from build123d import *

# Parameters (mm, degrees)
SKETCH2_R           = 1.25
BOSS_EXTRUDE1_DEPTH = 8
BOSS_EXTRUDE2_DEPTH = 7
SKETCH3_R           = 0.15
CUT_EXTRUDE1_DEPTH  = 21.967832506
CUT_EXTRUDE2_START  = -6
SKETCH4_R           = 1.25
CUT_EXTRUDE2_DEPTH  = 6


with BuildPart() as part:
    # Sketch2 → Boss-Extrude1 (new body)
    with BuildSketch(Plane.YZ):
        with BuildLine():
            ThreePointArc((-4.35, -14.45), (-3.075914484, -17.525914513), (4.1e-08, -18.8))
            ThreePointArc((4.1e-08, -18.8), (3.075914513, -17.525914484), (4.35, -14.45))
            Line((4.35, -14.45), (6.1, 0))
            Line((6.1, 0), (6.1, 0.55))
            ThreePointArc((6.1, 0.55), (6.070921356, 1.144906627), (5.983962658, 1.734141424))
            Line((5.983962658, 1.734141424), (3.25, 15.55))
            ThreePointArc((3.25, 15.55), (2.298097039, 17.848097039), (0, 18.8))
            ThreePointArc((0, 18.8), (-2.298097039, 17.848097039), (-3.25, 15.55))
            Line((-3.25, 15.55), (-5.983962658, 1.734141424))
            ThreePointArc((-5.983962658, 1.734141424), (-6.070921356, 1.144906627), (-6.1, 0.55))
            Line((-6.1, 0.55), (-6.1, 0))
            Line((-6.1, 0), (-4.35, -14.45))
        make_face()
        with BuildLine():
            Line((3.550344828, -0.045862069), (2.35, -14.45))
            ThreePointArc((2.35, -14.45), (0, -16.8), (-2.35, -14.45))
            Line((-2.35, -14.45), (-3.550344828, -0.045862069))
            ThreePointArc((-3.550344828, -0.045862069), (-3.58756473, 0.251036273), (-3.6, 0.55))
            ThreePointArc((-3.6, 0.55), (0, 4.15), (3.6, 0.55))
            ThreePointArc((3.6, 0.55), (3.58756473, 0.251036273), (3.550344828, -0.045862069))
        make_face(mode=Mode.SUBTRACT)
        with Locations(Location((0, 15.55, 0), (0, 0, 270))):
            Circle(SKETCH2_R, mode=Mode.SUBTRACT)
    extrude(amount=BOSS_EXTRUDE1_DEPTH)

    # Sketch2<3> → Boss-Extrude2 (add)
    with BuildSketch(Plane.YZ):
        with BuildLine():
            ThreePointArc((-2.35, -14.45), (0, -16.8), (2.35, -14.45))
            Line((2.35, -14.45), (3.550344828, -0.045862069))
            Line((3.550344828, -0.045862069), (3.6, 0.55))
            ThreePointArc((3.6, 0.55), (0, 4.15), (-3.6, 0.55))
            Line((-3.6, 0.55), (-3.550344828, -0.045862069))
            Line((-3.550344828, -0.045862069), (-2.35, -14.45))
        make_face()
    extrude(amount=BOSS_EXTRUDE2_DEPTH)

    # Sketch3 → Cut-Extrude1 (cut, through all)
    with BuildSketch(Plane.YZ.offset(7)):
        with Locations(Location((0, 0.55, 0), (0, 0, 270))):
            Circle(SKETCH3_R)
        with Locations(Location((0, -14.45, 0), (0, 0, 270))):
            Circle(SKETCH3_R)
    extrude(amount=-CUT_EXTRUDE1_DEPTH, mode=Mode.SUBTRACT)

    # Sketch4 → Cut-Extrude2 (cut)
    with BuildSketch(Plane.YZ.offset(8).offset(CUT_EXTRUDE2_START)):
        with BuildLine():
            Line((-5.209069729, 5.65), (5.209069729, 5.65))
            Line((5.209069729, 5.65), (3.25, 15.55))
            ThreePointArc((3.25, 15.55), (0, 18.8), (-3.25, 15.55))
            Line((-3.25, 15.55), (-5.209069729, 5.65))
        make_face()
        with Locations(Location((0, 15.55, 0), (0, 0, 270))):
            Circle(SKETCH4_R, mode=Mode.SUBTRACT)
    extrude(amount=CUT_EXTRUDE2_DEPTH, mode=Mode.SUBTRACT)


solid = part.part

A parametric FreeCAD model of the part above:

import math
import FreeCAD as App
import Part
import Sketcher

V = App.Vector
Q = App.Units.Quantity

doc = App.newDocument("Part")
params = doc.addObject("Spreadsheet::Sheet", "Params")
for row, (alias, value) in enumerate([
    ("sketch1_diameter", "2.5 mm"),
    ("sketch1_radius", "6.1 mm"),
    ("sketch1_radius2", "3.6 mm"),
    ("sketch1_radius3", "4.35 mm"),
    ("sketch1_radius4", "3.25 mm"),
    ("pad1_length", "8 mm"),
    ("sketch2_radius", "3.6 mm"),
    ("sketch2_radius2", "2.35 mm"),
    ("pad2_length", "7 mm"),
    ("sketch3_diameter", "0.3 mm"),
    ("sketch4_diameter", "2.5 mm"),
    ("sketch4_radius", "3.25 mm"),
    ("pocket2_length", "6 mm"),
], start=1):
    params.set(f"A{row}", alias)
    params.set(f"B{row}", "=" + value)
    params.setAlias(f"B{row}", alias)

body = doc.addObject("PartDesign::Body", "Body")

# Sketch on YZ plane
sketch1 = body.newObject("Sketcher::SketchObject", "Sketch")
sketch1.AttachmentSupport = (doc.getObject("YZ_Plane"), [""])
sketch1.MapMode = "FlatFace"
sketch1.addGeometry(Part.ArcOfCircle(Part.Circle(V(0, -14.45, 0), V(0, 0, 1), 4.35), math.radians(180), math.radians(270.000001)), False)
sketch1.addGeometry(Part.ArcOfCircle(Part.Circle(V(0, -14.45, 0), V(0, 0, 1), 4.35), math.radians(-89.999999), math.radians(0)), False)
sketch1.addGeometry(Part.LineSegment(V(4.35, -14.45, 0), V(6.1, 0, 0)), False)
sketch1.addGeometry(Part.LineSegment(V(6.1, 0, 0), V(6.1, 0.55, 0)), False)
sketch1.addGeometry(Part.ArcOfCircle(Part.Circle(V(0, 0.55, 0), V(0, 0, 1), 6.1), math.radians(0), math.radians(11.193411)), False)
sketch1.addGeometry(Part.LineSegment(V(5.983963, 1.734141, 0), V(3.25, 15.55, 0)), False)
sketch1.addGeometry(Part.ArcOfCircle(Part.Circle(V(0, 15.55, 0), V(0, 0, 1), 3.25), math.radians(0), math.radians(90)), False)
sketch1.addGeometry(Part.ArcOfCircle(Part.Circle(V(0, 15.55, 0), V(0, 0, 1), 3.25), math.radians(90), math.radians(180)), False)
sketch1.addGeometry(Part.LineSegment(V(-3.25, 15.55, 0), V(-5.983963, 1.734141, 0)), False)
sketch1.addGeometry(Part.ArcOfCircle(Part.Circle(V(0, 0.55, 0), V(0, 0, 1), 6.1), math.radians(168.806589), math.radians(180)), False)
sketch1.addGeometry(Part.LineSegment(V(-6.1, 0.55, 0), V(-6.1, 0, 0)), False)
sketch1.addGeometry(Part.LineSegment(V(-6.1, 0, 0), V(-4.35, -14.45, 0)), False)
sketch1.addGeometry(Part.ArcOfCircle(Part.Circle(V(0, 0.55, 0), V(0, 0, 1), 3.6), math.radians(-9.527283), math.radians(0)), False)
sketch1.addGeometry(Part.LineSegment(V(3.550345, -0.045862, 0), V(2.35, -14.45, 0)), False)
sketch1.addGeometry(Part.ArcOfCircle(Part.Circle(V(0, -14.45, 0), V(0, 0, 1), 2.35), math.radians(180), math.radians(360)), False)
sketch1.addGeometry(Part.LineSegment(V(-2.35, -14.45, 0), V(-3.550345, -0.045862, 0)), False)
sketch1.addGeometry(Part.ArcOfCircle(Part.Circle(V(0, 0.55, 0), V(0, 0, 1), 3.6), math.radians(180), math.radians(189.527283)), False)
sketch1.addGeometry(Part.ArcOfCircle(Part.Circle(V(0, 0.55, 0), V(0, 0, 1), 3.6), math.radians(0), math.radians(180)), False)
sketch1.addGeometry(Part.Circle(V(0, 15.55, 0), V(0, 0, 1), 1.25), False)
sketch1.addConstraint(Sketcher.Constraint("Tangent", 0, 2, 1, 1))
sketch1.addConstraint(Sketcher.Constraint("Coincident", 1, 2, 2, 1))
sketch1.addConstraint(Sketcher.Constraint("Coincident", 2, 2, 3, 1))
sketch1.addConstraint(Sketcher.Constraint("Tangent", 3, 2, 4, 1))
sketch1.addConstraint(Sketcher.Constraint("Tangent", 4, 2, 5, 1))
sketch1.addConstraint(Sketcher.Constraint("Coincident", 5, 2, 6, 1))
sketch1.addConstraint(Sketcher.Constraint("Tangent", 6, 2, 7, 1))
sketch1.addConstraint(Sketcher.Constraint("Coincident", 7, 2, 8, 1))
sketch1.addConstraint(Sketcher.Constraint("Tangent", 8, 2, 9, 1))
sketch1.addConstraint(Sketcher.Constraint("Tangent", 9, 2, 10, 1))
sketch1.addConstraint(Sketcher.Constraint("Coincident", 10, 2, 11, 1))
sketch1.addConstraint(Sketcher.Constraint("Coincident", 11, 2, 0, 1))
sketch1.addConstraint(Sketcher.Constraint("Coincident", 12, 1, 13, 1))
sketch1.addConstraint(Sketcher.Constraint("Coincident", 13, 2, 14, 2))
sketch1.addConstraint(Sketcher.Constraint("Coincident", 14, 1, 15, 1))
sketch1.addConstraint(Sketcher.Constraint("Coincident", 15, 2, 16, 2))
sketch1.addConstraint(Sketcher.Constraint("Tangent", 16, 1, 17, 2))
sketch1.addConstraint(Sketcher.Constraint("Tangent", 17, 1, 12, 2))
sketch1.addConstraint(Sketcher.Constraint("Vertical", 3))
sketch1.addConstraint(Sketcher.Constraint("Vertical", 10))
sketch1.addConstraint(Sketcher.Constraint("Coincident", 9, 3, 4, 3))
sketch1.addConstraint(Sketcher.Constraint("Coincident", 12, 3, 4, 3))
sketch1.addConstraint(Sketcher.Constraint("Coincident", 14, 3, 0, 3))
sketch1.addConstraint(Sketcher.Constraint("Coincident", 18, 3, 6, 3))
sketch1.addConstraint(Sketcher.Constraint("Equal", 0, 1))
sketch1.addConstraint(Sketcher.Constraint("Equal", 6, 7))
sketch1.addConstraint(Sketcher.Constraint("Equal", 4, 9))
sketch1.addConstraint(Sketcher.Constraint("Equal", 12, 16))
sketch1.addConstraint(Sketcher.Constraint("Equal", 16, 17))
sketch1.addConstraint(Sketcher.Constraint("Symmetric", 0, 2, 6, 2, -1, 1))
sketch1.addConstraint(Sketcher.Constraint("Symmetric", 2, 2, 10, 2, -1, 1))
sketch1.addConstraint(Sketcher.Constraint("Symmetric", 5, 2, 7, 2, -2))
sketch1.addConstraint(Sketcher.Constraint("Symmetric", 1, 2, 11, 2, -2))
sketch1.addConstraint(Sketcher.Constraint("PointOnObject", 0, 2, -2))
sketch1.addConstraint(Sketcher.Constraint("PointOnObject", 2, 2, -1))
sketch1.addConstraint(Sketcher.Constraint("Horizontal", 14, 3, 1, 2))
sketch1.addConstraint(Sketcher.Constraint("Horizontal", 18, 3, 5, 2))
sketch1.addConstraint(Sketcher.Constraint("Horizontal", 11, 2, 13, 2))
sketch1.addConstraint(Sketcher.Constraint("Horizontal", 13, 2, 14, 1))
sketch1.addConstraint(Sketcher.Constraint("Horizontal", 12, 1, 15, 2))
sketch1.addConstraint(Sketcher.Constraint("Horizontal", 9, 2, 16, 1))
sketch1.addConstraint(Sketcher.Constraint("Horizontal", 16, 1, 17, 1))
sketch1.addConstraint(Sketcher.Constraint("Diameter", 18, Q("2.5 mm")))
sketch1.addConstraint(Sketcher.Constraint("Radius", 4, Q("6.1 mm")))
sketch1.addConstraint(Sketcher.Constraint("Radius", 12, Q("3.6 mm")))
sketch1.addConstraint(Sketcher.Constraint("Radius", 0, Q("4.35 mm")))
sketch1.addConstraint(Sketcher.Constraint("Radius", 6, Q("3.25 mm")))
sketch1.addConstraint(Sketcher.Constraint("Radius", 14, Q("2.35 mm")))
sketch1.addConstraint(Sketcher.Constraint("DistanceY", 0, 3, 4, 3, Q("15 mm")))
sketch1.addConstraint(Sketcher.Constraint("DistanceY", 4, 3, 6, 3, Q("15 mm")))
sketch1.addConstraint(Sketcher.Constraint("Distance", 13, Q("14.454066 mm")))
sketch1.setExpression("Constraints[42]", "Params.sketch1_diameter")
sketch1.setExpression("Constraints[43]", "Params.sketch1_radius")
sketch1.setExpression("Constraints[44]", "Params.sketch1_radius2")
sketch1.setExpression("Constraints[45]", "Params.sketch1_radius3")
sketch1.setExpression("Constraints[46]", "Params.sketch1_radius4")
pad1 = body.newObject("PartDesign::Pad", "Pad")
pad1.Profile = sketch1
pad1.setExpression("Length", "Params.pad1_length")

# Sketch on YZ plane
sketch2 = body.newObject("Sketcher::SketchObject", "Sketch001")
sketch2.AttachmentSupport = (doc.getObject("YZ_Plane"), [""])
sketch2.MapMode = "FlatFace"
sketch2.addGeometry(Part.ArcOfCircle(Part.Circle(V(0, -14.45, 0), V(0, 0, 1), 2.35), math.radians(180), math.radians(360)), False)
sketch2.addGeometry(Part.LineSegment(V(2.35, -14.45, 0), V(3.550345, -0.045862, 0)), False)
sketch2.addGeometry(Part.LineSegment(V(3.550345, -0.045862, 0), V(3.6, 0.55, 0)), False)
sketch2.addGeometry(Part.ArcOfCircle(Part.Circle(V(0, 0.55, 0), V(0, 0, 1), 3.6), math.radians(0), math.radians(180)), False)
sketch2.addGeometry(Part.LineSegment(V(-3.6, 0.55, 0), V(-3.550345, -0.045862, 0)), False)
sketch2.addGeometry(Part.LineSegment(V(-3.550345, -0.045862, 0), V(-2.35, -14.45, 0)), False)
sketch2.addConstraint(Sketcher.Constraint("Coincident", 0, 2, 1, 1))
sketch2.addConstraint(Sketcher.Constraint("Coincident", 1, 2, 2, 1))
sketch2.addConstraint(Sketcher.Constraint("Coincident", 2, 2, 3, 1))
sketch2.addConstraint(Sketcher.Constraint("Coincident", 3, 2, 4, 1))
sketch2.addConstraint(Sketcher.Constraint("Coincident", 4, 2, 5, 1))
sketch2.addConstraint(Sketcher.Constraint("Coincident", 5, 2, 0, 1))
sketch2.addConstraint(Sketcher.Constraint("Symmetric", 2, 2, 3, 2, -2))
sketch2.addConstraint(Sketcher.Constraint("Symmetric", 1, 2, 4, 2, -2))
sketch2.addConstraint(Sketcher.Constraint("Symmetric", 0, 2, 5, 2, -2))
sketch2.addConstraint(Sketcher.Constraint("Parallel", 1, 2))
sketch2.addConstraint(Sketcher.Constraint("Horizontal", 3, 3, 2, 2))
sketch2.addConstraint(Sketcher.Constraint("Radius", 3, Q("3.6 mm")))
sketch2.addConstraint(Sketcher.Constraint("Radius", 0, Q("2.35 mm")))
sketch2.addConstraint(Sketcher.Constraint("DistanceY", 0, 3, 3, 3, Q("15 mm")))
sketch2.addConstraint(Sketcher.Constraint("DistanceY", 0, 2, 3, 3, Q("15 mm")))
sketch2.addConstraint(Sketcher.Constraint("DistanceY", 0, 3, -1, 1, Q("14.45 mm")))
sketch2.addConstraint(Sketcher.Constraint("DistanceX", 4, 2, 1, 2, Q("7.10069 mm")))
sketch2.setExpression("Constraints[11]", "Params.sketch2_radius")
sketch2.setExpression("Constraints[12]", "Params.sketch2_radius2")
pad2 = body.newObject("PartDesign::Pad", "Pad001")
pad2.Profile = sketch2
pad2.setExpression("Length", "Params.pad2_length")

# Sketch on YZ plane
sketch3 = body.newObject("Sketcher::SketchObject", "Sketch002")
sketch3.AttachmentSupport = (doc.getObject("YZ_Plane"), [""])
sketch3.MapMode = "FlatFace"
sketch3.AttachmentOffset = App.Placement(V(0, 0, 7), App.Rotation())
sketch3.addGeometry(Part.Circle(V(0, 0.55, 0), V(0, 0, 1), 0.15), False)
sketch3.addGeometry(Part.Circle(V(0, -14.45, 0), V(0, 0, 1), 0.15), False)
sketch3.addConstraint(Sketcher.Constraint("Equal", 0, 1))
sketch3.addConstraint(Sketcher.Constraint("PointOnObject", 0, 3, -2))
sketch3.addConstraint(Sketcher.Constraint("PointOnObject", 1, 3, -2))
sketch3.addConstraint(Sketcher.Constraint("Diameter", 0, Q("0.3 mm")))
sketch3.addConstraint(Sketcher.Constraint("DistanceY", 1, 3, 0, 3, Q("15 mm")))
sketch3.addConstraint(Sketcher.Constraint("DistanceY", -1, 1, 0, 3, Q("0.55 mm")))
sketch3.setExpression("Constraints[3]", "Params.sketch3_diameter")
pocket1 = body.newObject("PartDesign::Pocket", "Pocket")
pocket1.Profile = sketch3
pocket1.Type = "ThroughAll"

# Sketch on YZ plane
sketch4 = body.newObject("Sketcher::SketchObject", "Sketch003")
sketch4.AttachmentSupport = (doc.getObject("YZ_Plane"), [""])
sketch4.MapMode = "FlatFace"
sketch4.AttachmentOffset = App.Placement(V(0, 0, 2), App.Rotation())
sketch4.addGeometry(Part.LineSegment(V(-5.20907, 5.65, 0), V(5.20907, 5.65, 0)), False)
sketch4.addGeometry(Part.LineSegment(V(5.20907, 5.65, 0), V(3.25, 15.55, 0)), False)
sketch4.addGeometry(Part.ArcOfCircle(Part.Circle(V(0, 15.55, 0), V(0, 0, 1), 3.25), math.radians(0), math.radians(180)), False)
sketch4.addGeometry(Part.LineSegment(V(-3.25, 15.55, 0), V(-5.20907, 5.65, 0)), False)
sketch4.addGeometry(Part.Circle(V(0, 15.55, 0), V(0, 0, 1), 1.25), False)
sketch4.addConstraint(Sketcher.Constraint("Coincident", 0, 2, 1, 1))
sketch4.addConstraint(Sketcher.Constraint("Coincident", 1, 2, 2, 1))
sketch4.addConstraint(Sketcher.Constraint("Coincident", 2, 2, 3, 1))
sketch4.addConstraint(Sketcher.Constraint("Coincident", 3, 2, 0, 1))
sketch4.addConstraint(Sketcher.Constraint("Horizontal", 0))
sketch4.addConstraint(Sketcher.Constraint("Coincident", 4, 3, 2, 3))
sketch4.addConstraint(Sketcher.Constraint("Symmetric", 1, 2, 2, 2, -2))
sketch4.addConstraint(Sketcher.Constraint("Horizontal", 4, 3, 1, 2))
sketch4.addConstraint(Sketcher.Constraint("Equal", 1, 3))
sketch4.addConstraint(Sketcher.Constraint("Diameter", 4, Q("2.5 mm")))
sketch4.addConstraint(Sketcher.Constraint("Radius", 2, Q("3.25 mm")))
sketch4.addConstraint(Sketcher.Constraint("DistanceY", 0, 2, 2, 3, Q("9.9 mm")))
sketch4.addConstraint(Sketcher.Constraint("DistanceY", -1, 1, 2, 3, Q("15.55 mm")))
sketch4.addConstraint(Sketcher.Constraint("DistanceX", 0, 1, 0, 2, Q("10.418139 mm")))
sketch4.setExpression("Constraints[9]", "Params.sketch4_diameter")
sketch4.setExpression("Constraints[10]", "Params.sketch4_radius")
pocket2 = body.newObject("PartDesign::Pocket", "Pocket001")
pocket2.Profile = sketch4
pocket2.setExpression("Length", "Params.pocket2_length")
pocket2.Reversed = True

doc.recompute()
